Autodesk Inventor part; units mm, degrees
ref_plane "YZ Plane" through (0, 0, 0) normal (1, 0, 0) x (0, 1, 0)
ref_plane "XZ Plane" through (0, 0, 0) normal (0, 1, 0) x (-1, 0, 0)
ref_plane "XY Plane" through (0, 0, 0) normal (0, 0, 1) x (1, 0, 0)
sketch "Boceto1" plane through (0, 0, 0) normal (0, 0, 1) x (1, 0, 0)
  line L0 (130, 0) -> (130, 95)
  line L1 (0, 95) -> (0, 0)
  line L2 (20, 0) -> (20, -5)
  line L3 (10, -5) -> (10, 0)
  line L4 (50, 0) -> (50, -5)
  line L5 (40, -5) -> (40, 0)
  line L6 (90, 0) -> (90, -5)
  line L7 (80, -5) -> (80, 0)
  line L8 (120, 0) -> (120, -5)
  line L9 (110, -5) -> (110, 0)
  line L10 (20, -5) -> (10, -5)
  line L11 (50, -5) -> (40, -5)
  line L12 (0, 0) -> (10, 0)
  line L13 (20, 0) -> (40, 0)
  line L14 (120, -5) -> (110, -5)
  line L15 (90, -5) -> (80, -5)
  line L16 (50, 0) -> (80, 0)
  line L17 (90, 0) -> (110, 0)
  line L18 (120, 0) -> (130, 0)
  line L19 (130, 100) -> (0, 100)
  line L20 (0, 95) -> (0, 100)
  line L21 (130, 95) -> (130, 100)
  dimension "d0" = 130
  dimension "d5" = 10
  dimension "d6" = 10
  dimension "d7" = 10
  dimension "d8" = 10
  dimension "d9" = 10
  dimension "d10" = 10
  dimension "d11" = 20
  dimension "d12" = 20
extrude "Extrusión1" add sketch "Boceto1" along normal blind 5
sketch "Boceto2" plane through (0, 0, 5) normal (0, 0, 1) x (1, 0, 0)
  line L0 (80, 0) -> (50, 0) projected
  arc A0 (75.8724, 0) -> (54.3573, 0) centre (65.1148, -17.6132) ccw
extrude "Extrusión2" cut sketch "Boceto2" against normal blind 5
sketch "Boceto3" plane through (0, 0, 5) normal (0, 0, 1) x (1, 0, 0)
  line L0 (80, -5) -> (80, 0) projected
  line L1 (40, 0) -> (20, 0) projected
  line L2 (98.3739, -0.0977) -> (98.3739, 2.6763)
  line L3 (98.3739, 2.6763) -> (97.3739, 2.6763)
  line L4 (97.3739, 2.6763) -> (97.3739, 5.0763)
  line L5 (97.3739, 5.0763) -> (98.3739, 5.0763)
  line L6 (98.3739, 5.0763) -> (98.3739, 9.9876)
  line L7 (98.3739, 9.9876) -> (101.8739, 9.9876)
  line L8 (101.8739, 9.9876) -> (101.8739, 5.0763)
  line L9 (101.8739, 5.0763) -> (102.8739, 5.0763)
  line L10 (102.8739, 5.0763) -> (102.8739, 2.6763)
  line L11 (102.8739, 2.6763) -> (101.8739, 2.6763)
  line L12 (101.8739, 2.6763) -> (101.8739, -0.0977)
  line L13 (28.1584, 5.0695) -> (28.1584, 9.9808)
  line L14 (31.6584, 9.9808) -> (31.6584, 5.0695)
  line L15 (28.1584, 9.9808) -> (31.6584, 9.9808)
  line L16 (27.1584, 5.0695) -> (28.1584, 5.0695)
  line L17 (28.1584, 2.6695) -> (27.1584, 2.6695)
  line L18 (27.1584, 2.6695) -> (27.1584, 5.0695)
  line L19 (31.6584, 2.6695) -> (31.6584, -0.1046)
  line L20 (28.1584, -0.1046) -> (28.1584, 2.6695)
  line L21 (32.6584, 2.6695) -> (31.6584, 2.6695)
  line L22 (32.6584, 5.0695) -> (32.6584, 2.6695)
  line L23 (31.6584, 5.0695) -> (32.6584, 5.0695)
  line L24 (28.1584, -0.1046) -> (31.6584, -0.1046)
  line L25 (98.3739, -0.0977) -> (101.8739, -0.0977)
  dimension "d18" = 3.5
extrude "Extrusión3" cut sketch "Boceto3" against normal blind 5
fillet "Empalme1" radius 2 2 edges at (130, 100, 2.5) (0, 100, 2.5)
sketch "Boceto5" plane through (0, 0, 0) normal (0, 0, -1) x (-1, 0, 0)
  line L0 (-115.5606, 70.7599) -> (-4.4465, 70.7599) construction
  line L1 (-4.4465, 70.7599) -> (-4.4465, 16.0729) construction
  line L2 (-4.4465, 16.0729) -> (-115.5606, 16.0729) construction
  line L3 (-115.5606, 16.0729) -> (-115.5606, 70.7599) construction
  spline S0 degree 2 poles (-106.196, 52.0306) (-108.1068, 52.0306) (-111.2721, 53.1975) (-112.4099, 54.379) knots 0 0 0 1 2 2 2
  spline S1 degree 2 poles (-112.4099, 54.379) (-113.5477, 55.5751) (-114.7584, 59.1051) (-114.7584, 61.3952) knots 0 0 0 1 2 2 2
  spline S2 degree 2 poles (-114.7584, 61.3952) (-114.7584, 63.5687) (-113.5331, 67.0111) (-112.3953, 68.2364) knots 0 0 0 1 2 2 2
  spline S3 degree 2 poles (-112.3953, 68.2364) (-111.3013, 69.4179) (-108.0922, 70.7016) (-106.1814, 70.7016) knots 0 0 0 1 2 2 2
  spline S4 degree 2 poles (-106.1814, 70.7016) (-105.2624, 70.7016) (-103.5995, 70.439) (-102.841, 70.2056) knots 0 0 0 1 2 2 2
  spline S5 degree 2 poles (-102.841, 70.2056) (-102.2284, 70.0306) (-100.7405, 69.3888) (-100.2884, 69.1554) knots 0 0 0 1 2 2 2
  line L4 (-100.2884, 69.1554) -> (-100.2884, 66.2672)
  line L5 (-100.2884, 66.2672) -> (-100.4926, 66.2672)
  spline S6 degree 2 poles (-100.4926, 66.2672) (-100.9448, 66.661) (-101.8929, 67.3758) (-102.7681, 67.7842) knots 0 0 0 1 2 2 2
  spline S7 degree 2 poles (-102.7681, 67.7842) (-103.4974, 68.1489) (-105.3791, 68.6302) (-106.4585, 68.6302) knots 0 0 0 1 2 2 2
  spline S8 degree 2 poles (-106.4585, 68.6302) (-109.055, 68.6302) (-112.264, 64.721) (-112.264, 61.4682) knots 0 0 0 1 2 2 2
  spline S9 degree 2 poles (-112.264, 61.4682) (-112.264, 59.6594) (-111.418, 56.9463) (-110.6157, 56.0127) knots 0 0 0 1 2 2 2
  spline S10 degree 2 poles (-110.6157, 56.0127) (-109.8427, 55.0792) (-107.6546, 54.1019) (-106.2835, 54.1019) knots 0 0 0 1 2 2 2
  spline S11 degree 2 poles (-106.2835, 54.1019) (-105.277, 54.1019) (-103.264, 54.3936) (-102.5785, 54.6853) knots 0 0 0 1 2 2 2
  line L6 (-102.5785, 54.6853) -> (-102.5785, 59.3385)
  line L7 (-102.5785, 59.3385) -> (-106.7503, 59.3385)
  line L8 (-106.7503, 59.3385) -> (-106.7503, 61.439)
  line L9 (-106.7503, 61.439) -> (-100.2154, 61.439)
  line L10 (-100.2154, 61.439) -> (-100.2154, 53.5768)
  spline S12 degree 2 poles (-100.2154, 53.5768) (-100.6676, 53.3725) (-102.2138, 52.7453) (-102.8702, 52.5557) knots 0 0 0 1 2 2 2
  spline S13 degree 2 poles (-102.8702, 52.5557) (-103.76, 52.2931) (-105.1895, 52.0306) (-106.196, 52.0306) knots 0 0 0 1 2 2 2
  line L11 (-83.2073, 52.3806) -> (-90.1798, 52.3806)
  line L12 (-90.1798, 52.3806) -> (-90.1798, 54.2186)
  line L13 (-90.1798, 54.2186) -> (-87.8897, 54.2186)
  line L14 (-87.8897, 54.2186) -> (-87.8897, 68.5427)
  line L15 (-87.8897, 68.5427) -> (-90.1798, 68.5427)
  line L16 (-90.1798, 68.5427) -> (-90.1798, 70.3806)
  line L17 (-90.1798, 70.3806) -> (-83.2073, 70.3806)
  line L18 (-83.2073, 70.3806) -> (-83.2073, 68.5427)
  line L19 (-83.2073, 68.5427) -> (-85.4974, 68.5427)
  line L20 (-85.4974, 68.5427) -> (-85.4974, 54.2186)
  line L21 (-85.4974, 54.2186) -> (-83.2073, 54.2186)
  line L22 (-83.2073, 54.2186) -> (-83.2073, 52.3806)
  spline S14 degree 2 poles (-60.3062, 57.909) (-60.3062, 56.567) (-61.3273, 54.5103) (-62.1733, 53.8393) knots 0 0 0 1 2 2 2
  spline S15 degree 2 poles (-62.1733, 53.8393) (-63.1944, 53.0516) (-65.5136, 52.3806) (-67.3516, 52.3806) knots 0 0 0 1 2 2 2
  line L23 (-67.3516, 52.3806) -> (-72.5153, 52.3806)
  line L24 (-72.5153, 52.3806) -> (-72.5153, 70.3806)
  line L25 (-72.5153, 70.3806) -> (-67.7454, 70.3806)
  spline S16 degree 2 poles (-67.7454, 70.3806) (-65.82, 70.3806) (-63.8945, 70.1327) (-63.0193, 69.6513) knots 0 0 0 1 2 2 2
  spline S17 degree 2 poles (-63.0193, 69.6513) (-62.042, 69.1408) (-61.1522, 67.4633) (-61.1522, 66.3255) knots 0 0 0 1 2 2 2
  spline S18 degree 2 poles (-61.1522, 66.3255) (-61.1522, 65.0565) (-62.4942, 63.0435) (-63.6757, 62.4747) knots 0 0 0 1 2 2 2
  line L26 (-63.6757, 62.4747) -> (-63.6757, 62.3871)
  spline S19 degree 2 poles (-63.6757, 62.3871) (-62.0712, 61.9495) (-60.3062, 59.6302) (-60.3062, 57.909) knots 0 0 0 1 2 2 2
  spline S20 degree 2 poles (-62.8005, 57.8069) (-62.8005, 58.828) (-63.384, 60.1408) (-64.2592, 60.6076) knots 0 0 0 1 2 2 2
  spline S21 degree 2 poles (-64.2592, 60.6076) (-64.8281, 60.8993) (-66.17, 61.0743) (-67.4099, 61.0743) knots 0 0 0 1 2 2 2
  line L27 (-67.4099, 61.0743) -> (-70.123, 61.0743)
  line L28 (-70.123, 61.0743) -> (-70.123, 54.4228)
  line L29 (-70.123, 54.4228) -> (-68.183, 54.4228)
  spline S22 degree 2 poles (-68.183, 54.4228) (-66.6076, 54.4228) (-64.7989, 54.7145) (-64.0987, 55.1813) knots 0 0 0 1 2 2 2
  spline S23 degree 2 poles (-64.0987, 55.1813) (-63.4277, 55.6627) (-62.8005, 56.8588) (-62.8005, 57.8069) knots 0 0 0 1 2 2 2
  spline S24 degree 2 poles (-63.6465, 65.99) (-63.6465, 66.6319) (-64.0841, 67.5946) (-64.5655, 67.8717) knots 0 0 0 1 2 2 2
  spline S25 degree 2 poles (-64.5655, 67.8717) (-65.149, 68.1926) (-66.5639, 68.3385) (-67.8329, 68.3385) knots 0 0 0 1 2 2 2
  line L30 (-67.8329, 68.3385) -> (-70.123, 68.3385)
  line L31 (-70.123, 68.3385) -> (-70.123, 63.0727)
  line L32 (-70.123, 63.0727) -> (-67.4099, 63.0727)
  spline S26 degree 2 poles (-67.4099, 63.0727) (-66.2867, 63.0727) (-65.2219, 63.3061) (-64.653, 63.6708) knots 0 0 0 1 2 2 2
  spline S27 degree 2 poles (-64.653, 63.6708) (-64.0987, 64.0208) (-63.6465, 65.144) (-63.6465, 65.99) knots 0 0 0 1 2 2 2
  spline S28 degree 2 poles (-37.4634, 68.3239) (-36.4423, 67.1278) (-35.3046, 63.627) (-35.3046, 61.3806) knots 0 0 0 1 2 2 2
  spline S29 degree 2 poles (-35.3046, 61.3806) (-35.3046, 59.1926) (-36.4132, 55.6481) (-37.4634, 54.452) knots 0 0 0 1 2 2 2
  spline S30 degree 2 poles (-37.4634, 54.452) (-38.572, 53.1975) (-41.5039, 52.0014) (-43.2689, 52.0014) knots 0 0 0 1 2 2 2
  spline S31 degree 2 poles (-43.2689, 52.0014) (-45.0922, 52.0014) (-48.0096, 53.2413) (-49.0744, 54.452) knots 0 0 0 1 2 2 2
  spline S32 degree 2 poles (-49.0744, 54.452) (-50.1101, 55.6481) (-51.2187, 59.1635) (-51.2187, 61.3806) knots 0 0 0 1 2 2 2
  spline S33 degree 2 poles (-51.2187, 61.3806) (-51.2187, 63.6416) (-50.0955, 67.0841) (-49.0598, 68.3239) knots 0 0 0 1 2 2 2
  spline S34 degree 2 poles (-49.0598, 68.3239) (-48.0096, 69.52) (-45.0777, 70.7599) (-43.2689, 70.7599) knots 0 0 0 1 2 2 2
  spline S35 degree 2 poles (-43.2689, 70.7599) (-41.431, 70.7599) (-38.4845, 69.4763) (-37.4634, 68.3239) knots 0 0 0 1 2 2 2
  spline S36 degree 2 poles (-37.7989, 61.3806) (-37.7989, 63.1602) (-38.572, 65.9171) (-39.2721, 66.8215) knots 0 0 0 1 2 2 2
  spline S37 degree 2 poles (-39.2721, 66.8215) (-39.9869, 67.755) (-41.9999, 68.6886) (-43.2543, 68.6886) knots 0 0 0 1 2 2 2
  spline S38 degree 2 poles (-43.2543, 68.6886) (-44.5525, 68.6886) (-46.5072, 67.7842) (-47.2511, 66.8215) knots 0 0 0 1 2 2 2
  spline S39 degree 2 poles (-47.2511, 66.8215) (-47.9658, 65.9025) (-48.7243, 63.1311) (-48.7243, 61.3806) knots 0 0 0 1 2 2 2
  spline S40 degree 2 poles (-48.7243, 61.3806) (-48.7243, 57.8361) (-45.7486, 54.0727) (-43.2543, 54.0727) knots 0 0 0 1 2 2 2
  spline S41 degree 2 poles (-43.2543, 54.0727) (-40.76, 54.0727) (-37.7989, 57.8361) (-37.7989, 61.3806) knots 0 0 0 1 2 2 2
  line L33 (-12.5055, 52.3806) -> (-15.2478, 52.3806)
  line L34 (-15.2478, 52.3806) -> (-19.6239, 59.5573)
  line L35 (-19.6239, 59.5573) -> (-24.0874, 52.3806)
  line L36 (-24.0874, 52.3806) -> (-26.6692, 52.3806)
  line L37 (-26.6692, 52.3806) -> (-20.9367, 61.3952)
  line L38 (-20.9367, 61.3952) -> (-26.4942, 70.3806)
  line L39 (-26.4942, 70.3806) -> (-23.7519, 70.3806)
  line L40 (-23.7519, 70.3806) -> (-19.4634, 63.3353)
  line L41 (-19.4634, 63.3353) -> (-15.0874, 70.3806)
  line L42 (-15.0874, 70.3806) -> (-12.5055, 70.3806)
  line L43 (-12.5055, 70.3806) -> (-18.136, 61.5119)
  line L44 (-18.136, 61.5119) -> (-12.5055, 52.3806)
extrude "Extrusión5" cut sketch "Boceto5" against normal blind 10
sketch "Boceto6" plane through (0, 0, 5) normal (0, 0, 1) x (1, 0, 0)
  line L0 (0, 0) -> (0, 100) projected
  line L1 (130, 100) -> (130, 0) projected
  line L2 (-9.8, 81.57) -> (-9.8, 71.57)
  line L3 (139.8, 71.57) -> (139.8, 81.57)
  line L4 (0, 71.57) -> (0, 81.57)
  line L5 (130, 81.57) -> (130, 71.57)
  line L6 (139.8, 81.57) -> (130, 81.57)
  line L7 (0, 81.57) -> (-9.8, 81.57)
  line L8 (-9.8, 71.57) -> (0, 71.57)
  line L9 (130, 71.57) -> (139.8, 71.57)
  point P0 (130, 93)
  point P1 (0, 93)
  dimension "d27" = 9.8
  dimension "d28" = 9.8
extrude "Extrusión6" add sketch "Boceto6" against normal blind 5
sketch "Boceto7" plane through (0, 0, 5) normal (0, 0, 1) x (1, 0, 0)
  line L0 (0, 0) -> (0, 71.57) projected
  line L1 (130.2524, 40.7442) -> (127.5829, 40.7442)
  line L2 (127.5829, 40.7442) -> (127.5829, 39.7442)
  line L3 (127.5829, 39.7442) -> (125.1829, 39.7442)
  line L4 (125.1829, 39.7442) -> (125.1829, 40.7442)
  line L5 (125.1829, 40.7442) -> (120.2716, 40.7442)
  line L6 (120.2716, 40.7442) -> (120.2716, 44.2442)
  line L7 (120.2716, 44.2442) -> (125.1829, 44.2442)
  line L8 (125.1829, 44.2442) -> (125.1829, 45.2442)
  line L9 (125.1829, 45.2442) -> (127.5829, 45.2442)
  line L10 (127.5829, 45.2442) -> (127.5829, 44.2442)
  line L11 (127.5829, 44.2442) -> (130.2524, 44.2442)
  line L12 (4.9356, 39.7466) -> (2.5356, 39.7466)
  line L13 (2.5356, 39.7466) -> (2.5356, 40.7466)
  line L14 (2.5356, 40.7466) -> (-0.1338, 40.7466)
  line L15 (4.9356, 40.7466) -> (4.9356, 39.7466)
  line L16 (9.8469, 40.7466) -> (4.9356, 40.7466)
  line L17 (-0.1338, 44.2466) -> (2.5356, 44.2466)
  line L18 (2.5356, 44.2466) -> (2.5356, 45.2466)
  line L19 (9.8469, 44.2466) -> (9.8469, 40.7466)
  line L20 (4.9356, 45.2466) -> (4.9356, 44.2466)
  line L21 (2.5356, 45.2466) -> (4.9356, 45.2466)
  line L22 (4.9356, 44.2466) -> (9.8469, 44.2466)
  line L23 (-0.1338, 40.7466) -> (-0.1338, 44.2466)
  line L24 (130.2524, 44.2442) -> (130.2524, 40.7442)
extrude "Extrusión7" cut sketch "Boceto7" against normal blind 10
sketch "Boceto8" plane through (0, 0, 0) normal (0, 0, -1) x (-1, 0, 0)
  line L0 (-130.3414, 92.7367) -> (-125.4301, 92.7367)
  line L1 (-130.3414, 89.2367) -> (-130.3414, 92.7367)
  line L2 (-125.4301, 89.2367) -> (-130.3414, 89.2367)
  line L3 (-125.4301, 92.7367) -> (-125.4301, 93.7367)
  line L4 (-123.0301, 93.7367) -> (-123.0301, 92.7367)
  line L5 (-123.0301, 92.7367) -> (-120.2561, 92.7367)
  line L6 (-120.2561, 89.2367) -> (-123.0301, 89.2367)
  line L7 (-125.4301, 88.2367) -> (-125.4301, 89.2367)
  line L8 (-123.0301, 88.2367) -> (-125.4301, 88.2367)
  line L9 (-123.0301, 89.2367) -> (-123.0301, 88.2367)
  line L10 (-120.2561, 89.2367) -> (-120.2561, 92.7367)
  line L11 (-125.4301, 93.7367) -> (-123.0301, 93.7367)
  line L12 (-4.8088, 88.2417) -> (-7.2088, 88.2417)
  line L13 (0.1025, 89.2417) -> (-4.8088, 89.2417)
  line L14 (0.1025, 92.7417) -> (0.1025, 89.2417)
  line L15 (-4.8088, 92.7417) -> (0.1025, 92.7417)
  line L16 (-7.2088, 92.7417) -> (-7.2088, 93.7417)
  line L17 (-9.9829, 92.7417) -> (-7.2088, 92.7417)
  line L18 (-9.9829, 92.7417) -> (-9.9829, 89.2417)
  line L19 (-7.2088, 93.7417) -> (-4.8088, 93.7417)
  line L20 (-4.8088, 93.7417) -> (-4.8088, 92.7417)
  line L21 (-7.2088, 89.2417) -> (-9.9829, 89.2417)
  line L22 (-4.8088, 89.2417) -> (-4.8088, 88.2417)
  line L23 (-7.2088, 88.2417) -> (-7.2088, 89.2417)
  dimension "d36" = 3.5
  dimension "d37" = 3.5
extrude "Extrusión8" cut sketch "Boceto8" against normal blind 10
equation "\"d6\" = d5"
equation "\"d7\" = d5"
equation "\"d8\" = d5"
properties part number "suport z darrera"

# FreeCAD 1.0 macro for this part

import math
import FreeCAD as App
import Part
import Sketcher
Q = App.Units.Quantity


def edges_at(feature, points):
    """Names of the edges that pass closest to the given points."""
    edges = feature.Shape.Edges
    near = lambda p: min(range(len(edges)), key=lambda i: edges[i].distToShape(Part.Vertex(*p))[0])
    return sorted({f"Edge{near(p) + 1}" for p in points})


def add_polygon(sketch, points):
    """Adds a closed chain of lines whose ends are joined by coincident constraints."""
    first, n = sketch.GeometryCount, len(points)
    for a, b in zip(points, points[1:] + points[:1]):
        sketch.addGeometry(Part.LineSegment(App.Vector(*a, 0), App.Vector(*b, 0)), False)
    for i in range(n):
        sketch.addConstraint(Sketcher.Constraint("Coincident", first + i, 2, first + (i + 1) % n, 1))

doc = App.newDocument("Part")
body = doc.addObject("PartDesign::Body", "Body")
body.AllowCompound = True

sketch1 = body.newObject("Sketcher::SketchObject", "Sketch")
sketch1.AttachmentSupport = (doc.getObject("XY_Plane"), [""])
sketch1.MapMode = "FlatFace"
add_polygon(sketch1, [(120, 0), (130, 0), (130, 100), (0, 100), (0, 0), (10, 0), (10, -5), (20, -5), (20, 0), (40, 0), (40, -5), (50, -5), (50, 0), (80, 0), (80, -5), (90, -5), (90, 0), (110, 0), (110, -5), (120, -5)])
sketch1.addConstraint([
    Sketcher.Constraint("Horizontal", 0),
    Sketcher.Constraint("Vertical", 1),
    Sketcher.Constraint("Horizontal", 2),
    Sketcher.Constraint("Vertical", 3),
    Sketcher.Constraint("Horizontal", 4),
    Sketcher.Constraint("Vertical", 5),
    Sketcher.Constraint("Horizontal", 6),
    Sketcher.Constraint("Vertical", 7),
    Sketcher.Constraint("Horizontal", 8),
    Sketcher.Constraint("Vertical", 9),
    Sketcher.Constraint("Horizontal", 10),
    Sketcher.Constraint("Vertical", 11),
    Sketcher.Constraint("Horizontal", 12),
    Sketcher.Constraint("Vertical", 13),
    Sketcher.Constraint("Horizontal", 14),
    Sketcher.Constraint("Vertical", 15),
    Sketcher.Constraint("Horizontal", 16),
    Sketcher.Constraint("Vertical", 17),
    Sketcher.Constraint("Horizontal", 18),
    Sketcher.Constraint("Vertical", 19),
    Sketcher.Constraint("Coincident", 3, 2, -1, 1),
    Sketcher.Constraint("PointOnObject", 0, 2, -1),
    Sketcher.Constraint("PointOnObject", 7, 2, -1),
    Sketcher.Constraint("PointOnObject", 11, 2, -1),
    Sketcher.Constraint("PointOnObject", 15, 2, -1),
    Sketcher.Constraint("Horizontal", 6, 2, 9, 2),
    Sketcher.Constraint("Horizontal", 10, 2, 13, 2),
    Sketcher.Constraint("Horizontal", 14, 2, 17, 2),
    Sketcher.Constraint("Equal", 0, 4),
    Sketcher.Constraint("Equal", 4, 6),
    Sketcher.Constraint("Equal", 6, 10),
    Sketcher.Constraint("Equal", 10, 14),
    Sketcher.Constraint("Equal", 8, 16),
    Sketcher.Constraint("Equal", 14, 18),
    Sketcher.Constraint("DistanceX", 0, 1, 0, 2, 10.0),
    Sketcher.Constraint("DistanceX", 2, 2, 2, 1, 130.0),
    Sketcher.Constraint("DistanceX", 8, 1, 8, 2, 20.0),
    Sketcher.Constraint("DistanceY", 1, 1, 1, 2, 100.0),
    Sketcher.Constraint("DistanceY", 5, 2, 5, 1, 5.0),
])
pad1 = body.newObject("PartDesign::Pad", "Pad")
pad1.Profile = sketch1
pad1.Length = 5

sketch2 = body.newObject("Sketcher::SketchObject", "Sketch001")
sketch2.AttachmentSupport = (doc.getObject("XY_Plane"), [""])
sketch2.MapMode = "FlatFace"
sketch2.AttachmentOffset = App.Placement(App.Vector(0, 0, 5), App.Rotation())
sketch2.addGeometry([
    Part.LineSegment(App.Vector(54, 0, 0), App.Vector(76, 0, 0)),
    Part.ArcOfCircle(Part.Circle(App.Vector(65, -18, 0), App.Vector(0, 0, 1), 21), math.radians(59), math.radians(121)),
], False)
sketch2.addConstraint([
    Sketcher.Constraint("Coincident", 0, 1, 1, 2),
    Sketcher.Constraint("Coincident", 1, 1, 0, 2),
    Sketcher.Constraint("Horizontal", 0),
    Sketcher.Constraint("PointOnObject", 0, 1, -1),
    Sketcher.Constraint("Radius", 1, 20.6386),
    Sketcher.Constraint("DistanceX", 0, 1, 0, 2, 21.515),
    Sketcher.Constraint("DistanceX", -1, 1, 1, 3, 65.1148),
])
pocket1 = body.newObject("PartDesign::Pocket", "Pocket")
pocket1.Profile = sketch2
pocket1.Length = 5

sketch3 = body.newObject("Sketcher::SketchObject", "Sketch002")
sketch3.AttachmentSupport = (doc.getObject("XY_Plane"), [""])
sketch3.MapMode = "FlatFace"
sketch3.AttachmentOffset = App.Placement(App.Vector(0, 0, 5), App.Rotation())
add_polygon(sketch3, [(31.7, -0.1), (31.7, 2.7), (32.7, 2.7), (32.7, 5.1), (31.7, 5.1), (31.7, 10), (28.2, 10), (28.2, 5.1), (27.2, 5.1), (27.2, 2.7), (28.2, 2.7), (28.2, -0.1)])
add_polygon(sketch3, [(98.4, 2.7), (98.4, -0.1), (101.9, -0.1), (101.9, 2.7), (102.9, 2.7), (102.9, 5.1), (101.9, 5.1), (101.9, 10), (98.4, 10), (98.4, 5.1), (97.4, 5.1), (97.4, 2.7)])
sketch3.addConstraint([
    Sketcher.Constraint("Vertical", 0),
    Sketcher.Constraint("Horizontal", 1),
    Sketcher.Constraint("Vertical", 2),
    Sketcher.Constraint("Horizontal", 3),
    Sketcher.Constraint("Vertical", 4),
    Sketcher.Constraint("Horizontal", 5),
    Sketcher.Constraint("Vertical", 6),
    Sketcher.Constraint("Horizontal", 7),
    Sketcher.Constraint("Vertical", 8),
    Sketcher.Constraint("Horizontal", 9),
    Sketcher.Constraint("Vertical", 10),
    Sketcher.Constraint("Horizontal", 11),
    Sketcher.Constraint("Vertical", 12),
    Sketcher.Constraint("Horizontal", 13),
    Sketcher.Constraint("Vertical", 14),
    Sketcher.Constraint("Horizontal", 15),
    Sketcher.Constraint("Vertical", 16),
    Sketcher.Constraint("Horizontal", 17),
    Sketcher.Constraint("Vertical", 18),
    Sketcher.Constraint("Horizontal", 19),
    Sketcher.Constraint("Vertical", 20),
    Sketcher.Constraint("Horizontal", 21),
    Sketcher.Constraint("Vertical", 22),
    Sketcher.Constraint("Horizontal", 23),
    Sketcher.Constraint("Horizontal", 3, 2, 6, 2),
    Sketcher.Constraint("Horizontal", 1, 2, 8, 2),
    Sketcher.Constraint("Horizontal", 17, 2, 20, 2),
    Sketcher.Constraint("Horizontal", 15, 2, 22, 2),
    Sketcher.Constraint("Vertical", 0, 2, 3, 2),
    Sketcher.Constraint("Vertical", 6, 2, 9, 2),
    Sketcher.Constraint("Vertical", 14, 2, 17, 2),
    Sketcher.Constraint("Vertical", 12, 2, 19, 2),
    Sketcher.Constraint("Equal", 3, 7),
    Sketcher.Constraint("Equal", 11, 13),
    Sketcher.Constraint("Equal", 9, 15),
    Sketcher.Constraint("Equal", 17, 21),
    Sketcher.Constraint("Equal", 10, 12),
    Sketcher.Constraint("Equal", 8, 16),
    Sketcher.Constraint("Equal", 6, 18),
    Sketcher.Constraint("DistanceX", 5, 2, 5, 1, 3.5),
    Sketcher.Constraint("DistanceX", 1, 1, 1, 2, 1.0),
    Sketcher.Constraint("DistanceY", 2, 1, 2, 2, 2.4),
    Sketcher.Constraint("DistanceY", 0, 1, 0, 2, 2.774),
    Sketcher.Constraint("DistanceY", 4, 1, 4, 2, 4.9113),
    Sketcher.Constraint("DistanceX", -1, 1, 12, 2, 98.374),
    Sketcher.Constraint("DistanceY", 11, 2, 12, 2, 0.007),
    Sketcher.Constraint("DistanceX", -1, 1, 0, 2, 31.6584),
    Sketcher.Constraint("DistanceY", -1, 1, 0, 2, 2.6695),
])
pocket2 = body.newObject("PartDesign::Pocket", "Pocket001")
pocket2.Profile = sketch3
pocket2.Length = 5
doc.recompute()

fillet = body.newObject("PartDesign::Fillet", "Fillet")
fillet.Base = (pocket2, edges_at(pocket2, [(130, 100, 2.5), (0, 100, 2.5)]))
fillet.Radius = 2

sketch4 = body.newObject("Sketcher::SketchObject", "Sketch003")
sketch4.AttachmentSupport = (doc.getObject("XY_Plane"), [""])
sketch4.MapMode = "FlatFace"
sketch4.addGeometry(Part.BSplineCurve([App.Vector(106.196, 52.0306, 0), App.Vector(108.1068, 52.0306, 0), App.Vector(111.2721, 53.1975, 0), App.Vector(112.4099, 54.379, 0)], [3, 1, 3], [0, 1, 2], False, 2, [1, 1, 1, 1], False), False)
sketch4.addGeometry(Part.BSplineCurve([App.Vector(102.8702, 52.5557, 0), App.Vector(103.76, 52.2931, 0), App.Vector(105.1895, 52.0306, 0), App.Vector(106.196, 52.0306, 0)], [3, 1, 3], [0, 1, 2], False, 2, [1, 1, 1, 1], False), False)
sketch4.addGeometry(Part.BSplineCurve([App.Vector(100.2154, 53.5768, 0), App.Vector(100.6676, 53.3725, 0), App.Vector(102.2138, 52.7453, 0), App.Vector(102.8702, 52.5557, 0)], [3, 1, 3], [0, 1, 2], False, 2, [1, 1, 1, 1], False), False)
sketch4.addGeometry(Part.LineSegment(App.Vector(100.2154, 53.5768, 0), App.Vector(100.2154, 61.439, 0)), False)
sketch4.addGeometry(Part.LineSegment(App.Vector(100.2154, 61.439, 0), App.Vector(106.7503, 61.439, 0)), False)
sketch4.addGeometry(Part.LineSegment(App.Vector(106.7503, 61.439, 0), App.Vector(106.7503, 59.3385, 0)), False)
sketch4.addGeometry(Part.LineSegment(App.Vector(106.7503, 59.3385, 0), App.Vector(102.5785, 59.3385, 0)), False)
sketch4.addGeometry(Part.LineSegment(App.Vector(102.5785, 59.3385, 0), App.Vector(102.5785, 54.6853, 0)), False)
sketch4.addGeometry(Part.BSplineCurve([App.Vector(106.2835, 54.1019, 0), App.Vector(105.277, 54.1019, 0), App.Vector(103.264, 54.3936, 0), App.Vector(102.5785, 54.6853, 0)], [3, 1, 3], [0, 1, 2], False, 2, [1, 1, 1, 1], False), False)
sketch4.addGeometry(Part.BSplineCurve([App.Vector(110.6157, 56.0127, 0), App.Vector(109.8427, 55.0792, 0), App.Vector(107.6546, 54.1019, 0), App.Vector(106.2835, 54.1019, 0)], [3, 1, 3], [0, 1, 2], False, 2, [1, 1, 1, 1], False), False)
sketch4.addGeometry(Part.BSplineCurve([App.Vector(112.264, 61.4682, 0), App.Vector(112.264, 59.6594, 0), App.Vector(111.418, 56.9463, 0), App.Vector(110.6157, 56.0127, 0)], [3, 1, 3], [0, 1, 2], False, 2, [1, 1, 1, 1], False), False)
sketch4.addGeometry(Part.BSplineCurve([App.Vector(106.4585, 68.6302, 0), App.Vector(109.055, 68.6302, 0), App.Vector(112.264, 64.721, 0), App.Vector(112.264, 61.4682, 0)], [3, 1, 3], [0, 1, 2], False, 2, [1, 1, 1, 1], False), False)
sketch4.addGeometry(Part.BSplineCurve([App.Vector(102.7681, 67.7842, 0), App.Vector(103.4974, 68.1489, 0), App.Vector(105.3791, 68.6302, 0), App.Vector(106.4585, 68.6302, 0)], [3, 1, 3], [0, 1, 2], False, 2, [1, 1, 1, 1], False), False)
sketch4.addGeometry(Part.BSplineCurve([App.Vector(100.4926, 66.2672, 0), App.Vector(100.9448, 66.661, 0), App.Vector(101.8929, 67.3758, 0), App.Vector(102.7681, 67.7842, 0)], [3, 1, 3], [0, 1, 2], False, 2, [1, 1, 1, 1], False), False)
sketch4.addGeometry(Part.LineSegment(App.Vector(100.4926, 66.2672, 0), App.Vector(100.2884, 66.2672, 0)), False)
sketch4.addGeometry(Part.LineSegment(App.Vector(100.2884, 66.2672, 0), App.Vector(100.2884, 69.1554, 0)), False)
sketch4.addGeometry(Part.BSplineCurve([App.Vector(102.841, 70.2056, 0), App.Vector(102.2284, 70.0306, 0), App.Vector(100.7405, 69.3888, 0), App.Vector(100.2884, 69.1554, 0)], [3, 1, 3], [0, 1, 2], False, 2, [1, 1, 1, 1], False), False)
sketch4.addGeometry(Part.BSplineCurve([App.Vector(106.1814, 70.7016, 0), App.Vector(105.2624, 70.7016, 0), App.Vector(103.5995, 70.439, 0), App.Vector(102.841, 70.2056, 0)], [3, 1, 3], [0, 1, 2], False, 2, [1, 1, 1, 1], False), False)
sketch4.addGeometry(Part.BSplineCurve([App.Vector(112.3953, 68.2364, 0), App.Vector(111.3013, 69.4179, 0), App.Vector(108.0922, 70.7016, 0), App.Vector(106.1814, 70.7016, 0)], [3, 1, 3], [0, 1, 2], False, 2, [1, 1, 1, 1], False), False)
sketch4.addGeometry(Part.BSplineCurve([App.Vector(114.7584, 61.3952, 0), App.Vector(114.7584, 63.5687, 0), App.Vector(113.5331, 67.0111, 0), App.Vector(112.3953, 68.2364, 0)], [3, 1, 3], [0, 1, 2], False, 2, [1, 1, 1, 1], False), False)
sketch4.addGeometry(Part.BSplineCurve([App.Vector(112.4099, 54.379, 0), App.Vector(113.5477, 55.5751, 0), App.Vector(114.7584, 59.1051, 0), App.Vector(114.7584, 61.3952, 0)], [3, 1, 3], [0, 1, 2], False, 2, [1, 1, 1, 1], False), False)
add_polygon(sketch4, [(90.1798, 52.3806), (83.2073, 52.3806), (83.2073, 54.2186), (85.4974, 54.2186), (85.4974, 68.5427), (83.2073, 68.5427), (83.2073, 70.3806), (90.1798, 70.3806), (90.1798, 68.5427), (87.8897, 68.5427), (87.8897, 54.2186), (90.1798, 54.2186)])
sketch4.addGeometry(Part.BSplineCurve([App.Vector(60.3062, 57.909, 0), App.Vector(60.3062, 56.567, 0), App.Vector(61.3273, 54.5103, 0), App.Vector(62.1733, 53.8393, 0)], [3, 1, 3], [0, 1, 2], False, 2, [1, 1, 1, 1], False), False)
sketch4.addGeometry(Part.BSplineCurve([App.Vector(63.6757, 62.3871, 0), App.Vector(62.0712, 61.9495, 0), App.Vector(60.3062, 59.6302, 0), App.Vector(60.3062, 57.909, 0)], [3, 1, 3], [0, 1, 2], False, 2, [1, 1, 1, 1], False), False)
sketch4.addGeometry(Part.LineSegment(App.Vector(63.6757, 62.3871, 0), App.Vector(63.6757, 62.4747, 0)), False)
sketch4.addGeometry(Part.BSplineCurve([App.Vector(61.1522, 66.3255, 0), App.Vector(61.1522, 65.0565, 0), App.Vector(62.4942, 63.0435, 0), App.Vector(63.6757, 62.4747, 0)], [3, 1, 3], [0, 1, 2], False, 2, [1, 1, 1, 1], False), False)
sketch4.addGeometry(Part.BSplineCurve([App.Vector(63.0193, 69.6513, 0), App.Vector(62.042, 69.1408, 0), App.Vector(61.1522, 67.4633, 0), App.Vector(61.1522, 66.3255, 0)], [3, 1, 3], [0, 1, 2], False, 2, [1, 1, 1, 1], False), False)
sketch4.addGeometry(Part.BSplineCurve([App.Vector(67.7454, 70.3806, 0), App.Vector(65.82, 70.3806, 0), App.Vector(63.8945, 70.1327, 0), App.Vector(63.0193, 69.6513, 0)], [3, 1, 3], [0, 1, 2], False, 2, [1, 1, 1, 1], False), False)
sketch4.addGeometry(Part.LineSegment(App.Vector(67.7454, 70.3806, 0), App.Vector(72.5153, 70.3806, 0)), False)
sketch4.addGeometry(Part.LineSegment(App.Vector(72.5153, 70.3806, 0), App.Vector(72.5153, 52.3806, 0)), False)
sketch4.addGeometry(Part.LineSegment(App.Vector(72.5153, 52.3806, 0), App.Vector(67.3516, 52.3806, 0)), False)
sketch4.addGeometry(Part.BSplineCurve([App.Vector(62.1733, 53.8393, 0), App.Vector(63.1944, 53.0516, 0), App.Vector(65.5136, 52.3806, 0), App.Vector(67.3516, 52.3806, 0)], [3, 1, 3], [0, 1, 2], False, 2, [1, 1, 1, 1], False), False)
sketch4.addGeometry(Part.BSplineCurve([App.Vector(62.8005, 57.8069, 0), App.Vector(62.8005, 58.828, 0), App.Vector(63.384, 60.1408, 0), App.Vector(64.2592, 60.6076, 0)], [3, 1, 3], [0, 1, 2], False, 2, [1, 1, 1, 1], False), False)
sketch4.addGeometry(Part.BSplineCurve([App.Vector(64.0987, 55.1813, 0), App.Vector(63.4277, 55.6627, 0), App.Vector(62.8005, 56.8588, 0), App.Vector(62.8005, 57.8069, 0)], [3, 1, 3], [0, 1, 2], False, 2, [1, 1, 1, 1], False), False)
sketch4.addGeometry(Part.BSplineCurve([App.Vector(68.183, 54.4228, 0), App.Vector(66.6076, 54.4228, 0), App.Vector(64.7989, 54.7145, 0), App.Vector(64.0987, 55.1813, 0)], [3, 1, 3], [0, 1, 2], False, 2, [1, 1, 1, 1], False), False)
sketch4.addGeometry(Part.LineSegment(App.Vector(68.183, 54.4228, 0), App.Vector(70.123, 54.4228, 0)), False)
sketch4.addGeometry(Part.LineSegment(App.Vector(70.123, 54.4228, 0), App.Vector(70.123, 61.0743, 0)), False)
sketch4.addGeometry(Part.LineSegment(App.Vector(70.123, 61.0743, 0), App.Vector(67.4099, 61.0743, 0)), False)
sketch4.addGeometry(Part.BSplineCurve([App.Vector(64.2592, 60.6076, 0), App.Vector(64.8281, 60.8993, 0), App.Vector(66.17, 61.0743, 0), App.Vector(67.4099, 61.0743, 0)], [3, 1, 3], [0, 1, 2], False, 2, [1, 1, 1, 1], False), False)
sketch4.addGeometry(Part.BSplineCurve([App.Vector(63.6465, 65.99, 0), App.Vector(63.6465, 66.6319, 0), App.Vector(64.0841, 67.5946, 0), App.Vector(64.5655, 67.8717, 0)], [3, 1, 3], [0, 1, 2], False, 2, [1, 1, 1, 1], False), False)
sketch4.addGeometry(Part.BSplineCurve([App.Vector(64.653, 63.6708, 0), App.Vector(64.0987, 64.0208, 0), App.Vector(63.6465, 65.144, 0), App.Vector(63.6465, 65.99, 0)], [3, 1, 3], [0, 1, 2], False, 2, [1, 1, 1, 1], False), False)
sketch4.addGeometry(Part.BSplineCurve([App.Vector(67.4099, 63.0727, 0), App.Vector(66.2867, 63.0727, 0), App.Vector(65.2219, 63.3061, 0), App.Vector(64.653, 63.6708, 0)], [3, 1, 3], [0, 1, 2], False, 2, [1, 1, 1, 1], False), False)
sketch4.addGeometry(Part.LineSegment(App.Vector(67.4099, 63.0727, 0), App.Vector(70.123, 63.0727, 0)), False)
sketch4.addGeometry(Part.LineSegment(App.Vector(70.123, 63.0727, 0), App.Vector(70.123, 68.3385, 0)), False)
sketch4.addGeometry(Part.LineSegment(App.Vector(70.123, 68.3385, 0), App.Vector(67.8329, 68.3385, 0)), False)
sketch4.addGeometry(Part.BSplineCurve([App.Vector(64.5655, 67.8717, 0), App.Vector(65.149, 68.1926, 0), App.Vector(66.5639, 68.3385, 0), App.Vector(67.8329, 68.3385, 0)], [3, 1, 3], [0, 1, 2], False, 2, [1, 1, 1, 1], False), False)
sketch4.addGeometry(Part.BSplineCurve([App.Vector(37.4634, 68.3239, 0), App.Vector(36.4423, 67.1278, 0), App.Vector(35.3046, 63.627, 0), App.Vector(35.3046, 61.3806, 0)], [3, 1, 3], [0, 1, 2], False, 2, [1, 1, 1, 1], False), False)
sketch4.addGeometry(Part.BSplineCurve([App.Vector(43.2689, 70.7599, 0), App.Vector(41.431, 70.7599, 0), App.Vector(38.4845, 69.4763, 0), App.Vector(37.4634, 68.3239, 0)], [3, 1, 3], [0, 1, 2], False, 2, [1, 1, 1, 1], False), False)
sketch4.addGeometry(Part.BSplineCurve([App.Vector(49.0598, 68.3239, 0), App.Vector(48.0096, 69.52, 0), App.Vector(45.0777, 70.7599, 0), App.Vector(43.2689, 70.7599, 0)], [3, 1, 3], [0, 1, 2], False, 2, [1, 1, 1, 1], False), False)
sketch4.addGeometry(Part.BSplineCurve([App.Vector(51.2187, 61.3806, 0), App.Vector(51.2187, 63.6416, 0), App.Vector(50.0955, 67.0841, 0), App.Vector(49.0598, 68.3239, 0)], [3, 1, 3], [0, 1, 2], False, 2, [1, 1, 1, 1], False), False)
sketch4.addGeometry(Part.BSplineCurve([App.Vector(49.0744, 54.452, 0), App.Vector(50.1101, 55.6481, 0), App.Vector(51.2187, 59.1635, 0), App.Vector(51.2187, 61.3806, 0)], [3, 1, 3], [0, 1, 2], False, 2, [1, 1, 1, 1], False), False)
sketch4.addGeometry(Part.BSplineCurve([App.Vector(43.2689, 52.0014, 0), App.Vector(45.0922, 52.0014, 0), App.Vector(48.0096, 53.2413, 0), App.Vector(49.0744, 54.452, 0)], [3, 1, 3], [0, 1, 2], False, 2, [1, 1, 1, 1], False), False)
sketch4.addGeometry(Part.BSplineCurve([App.Vector(37.4634, 54.452, 0), App.Vector(38.572, 53.1975, 0), App.Vector(41.5039, 52.0014, 0), App.Vector(43.2689, 52.0014, 0)], [3, 1, 3], [0, 1, 2], False, 2, [1, 1, 1, 1], False), False)
sketch4.addGeometry(Part.BSplineCurve([App.Vector(35.3046, 61.3806, 0), App.Vector(35.3046, 59.1926, 0), App.Vector(36.4132, 55.6481, 0), App.Vector(37.4634, 54.452, 0)], [3, 1, 3], [0, 1, 2], False, 2, [1, 1, 1, 1], False), False)
sketch4.addGeometry(Part.BSplineCurve([App.Vector(37.7989, 61.3806, 0), App.Vector(37.7989, 63.1602, 0), App.Vector(38.572, 65.9171, 0), App.Vector(39.2721, 66.8215, 0)], [3, 1, 3], [0, 1, 2], False, 2, [1, 1, 1, 1], False), False)
sketch4.addGeometry(Part.BSplineCurve([App.Vector(43.2543, 54.0727, 0), App.Vector(40.76, 54.0727, 0), App.Vector(37.7989, 57.8361, 0), App.Vector(37.7989, 61.3806, 0)], [3, 1, 3], [0, 1, 2], False, 2, [1, 1, 1, 1], False), False)
sketch4.addGeometry(Part.BSplineCurve([App.Vector(48.7243, 61.3806, 0), App.Vector(48.7243, 57.8361, 0), App.Vector(45.7486, 54.0727, 0), App.Vector(43.2543, 54.0727, 0)], [3, 1, 3], [0, 1, 2], False, 2, [1, 1, 1, 1], False), False)
sketch4.addGeometry(Part.BSplineCurve([App.Vector(47.2511, 66.8215, 0), App.Vector(47.9658, 65.9025, 0), App.Vector(48.7243, 63.1311, 0), App.Vector(48.7243, 61.3806, 0)], [3, 1, 3], [0, 1, 2], False, 2, [1, 1, 1, 1], False), False)
sketch4.addGeometry(Part.BSplineCurve([App.Vector(43.2543, 68.6886, 0), App.Vector(44.5525, 68.6886, 0), App.Vector(46.5072, 67.7842, 0), App.Vector(47.2511, 66.8215, 0)], [3, 1, 3], [0, 1, 2], False, 2, [1, 1, 1, 1], False), False)
sketch4.addGeometry(Part.BSplineCurve([App.Vector(39.2721, 66.8215, 0), App.Vector(39.9869, 67.755, 0), App.Vector(41.9999, 68.6886, 0), App.Vector(43.2543, 68.6886, 0)], [3, 1, 3], [0, 1, 2], False, 2, [1, 1, 1, 1], False), False)
add_polygon(sketch4, [(15.2478, 52.3806), (12.5055, 52.3806), (18.136, 61.5119), (12.5055, 70.3806), (15.0874, 70.3806), (19.4634, 63.3353), (23.7519, 70.3806), (26.4942, 70.3806), (20.9367, 61.3952), (26.6692, 52.3806), (24.0874, 52.3806), (19.6239, 59.5573)])
sketch4.addConstraint([
    Sketcher.Constraint("Block", 0),
    Sketcher.Constraint("Block", 1),
    Sketcher.Constraint("Block", 2),
    Sketcher.Constraint("Block", 8),
    Sketcher.Constraint("Block", 9),
    Sketcher.Constraint("Block", 10),
    Sketcher.Constraint("Block", 11),
    Sketcher.Constraint("Block", 12),
    Sketcher.Constraint("Block", 13),
    Sketcher.Constraint("Block", 16),
    Sketcher.Constraint("Block", 17),
    Sketcher.Constraint("Block", 18),
    Sketcher.Constraint("Block", 19),
    Sketcher.Constraint("Block", 20),
    Sketcher.Constraint("Block", 33),
    Sketcher.Constraint("Block", 34),
    Sketcher.Constraint("Block", 36),
    Sketcher.Constraint("Block", 37),
    Sketcher.Constraint("Block", 38),
    Sketcher.Constraint("Block", 42),
    Sketcher.Constraint("Block", 43),
    Sketcher.Constraint("Block", 44),
    Sketcher.Constraint("Block", 45),
    Sketcher.Constraint("Block", 49),
    Sketcher.Constraint("Block", 50),
    Sketcher.Constraint("Block", 51),
    Sketcher.Constraint("Block", 52),
    Sketcher.Constraint("Block", 56),
    Sketcher.Constraint("Block", 57),
    Sketcher.Constraint("Block", 58),
    Sketcher.Constraint("Block", 59),
    Sketcher.Constraint("Block", 60),
    Sketcher.Constraint("Block", 61),
    Sketcher.Constraint("Block", 62),
    Sketcher.Constraint("Block", 63),
    Sketcher.Constraint("Block", 64),
    Sketcher.Constraint("Block", 65),
    Sketcher.Constraint("Block", 66),
    Sketcher.Constraint("Block", 67),
    Sketcher.Constraint("Block", 68),
    Sketcher.Constraint("Block", 69),
    Sketcher.Constraint("Block", 70),
    Sketcher.Constraint("Coincident", 2, 1, 3, 1),
    Sketcher.Constraint("Coincident", 3, 2, 4, 1),
    Sketcher.Constraint("Coincident", 4, 2, 5, 1),
    Sketcher.Constraint("Coincident", 5, 2, 6, 1),
    Sketcher.Constraint("Coincident", 6, 2, 7, 1),
    Sketcher.Constraint("Coincident", 7, 2, 8, 2),
    Sketcher.Constraint("Coincident", 13, 1, 14, 1),
    Sketcher.Constraint("Coincident", 14, 2, 15, 1),
    Sketcher.Constraint("Coincident", 15, 2, 16, 2),
    Sketcher.Constraint("Coincident", 34, 1, 35, 1),
    Sketcher.Constraint("Coincident", 35, 2, 36, 2),
    Sketcher.Constraint("Coincident", 38, 1, 39, 1),
    Sketcher.Constraint("Coincident", 39, 2, 40, 1),
    Sketcher.Constraint("Coincident", 40, 2, 41, 1),
    Sketcher.Constraint("Coincident", 41, 2, 42, 2),
    Sketcher.Constraint("Coincident", 45, 1, 46, 1),
    Sketcher.Constraint("Coincident", 46, 2, 47, 1),
    Sketcher.Constraint("Coincident", 47, 2, 48, 1),
    Sketcher.Constraint("Coincident", 48, 2, 49, 2),
    Sketcher.Constraint("Coincident", 52, 1, 53, 1),
    Sketcher.Constraint("Coincident", 53, 2, 54, 1),
    Sketcher.Constraint("Coincident", 54, 2, 55, 1),
    Sketcher.Constraint("Coincident", 55, 2, 56, 2),
    Sketcher.Constraint("Vertical", 3),
    Sketcher.Constraint("Horizontal", 4),
    Sketcher.Constraint("Vertical", 5),
    Sketcher.Constraint("Horizontal", 6),
    Sketcher.Constraint("Vertical", 7),
    Sketcher.Constraint("Horizontal", 14),
    Sketcher.Constraint("Vertical", 15),
    Sketcher.Constraint("Horizontal", 21),
    Sketcher.Constraint("Vertical", 22),
    Sketcher.Constraint("Horizontal", 23),
    Sketcher.Constraint("Vertical", 24),
    Sketcher.Constraint("Horizontal", 25),
    Sketcher.Constraint("Vertical", 26),
    Sketcher.Constraint("Horizontal", 27),
    Sketcher.Constraint("Vertical", 28),
    Sketcher.Constraint("Horizontal", 29),
    Sketcher.Constraint("Vertical", 30),
    Sketcher.Constraint("Horizontal", 31),
    Sketcher.Constraint("Vertical", 32),
    Sketcher.Constraint("Horizontal", 39),
    Sketcher.Constraint("Vertical", 40),
    Sketcher.Constraint("Horizontal", 41),
    Sketcher.Constraint("Horizontal", 46),
    Sketcher.Constraint("Vertical", 47),
    Sketcher.Constraint("Horizontal", 48),
    Sketcher.Constraint("Horizontal", 53),
    Sketcher.Constraint("Vertical", 54),
    Sketcher.Constraint("Horizontal", 55),
    Sketcher.Constraint("Horizontal", 71),
    Sketcher.Constraint("Horizontal", 74),
    Sketcher.Constraint("Horizontal", 77),
    Sketcher.Constraint("Horizontal", 80),
    Sketcher.Constraint("Horizontal", 25, 2, 28, 2),
    Sketcher.Constraint("Horizontal", 23, 2, 30, 2),
    Sketcher.Constraint("Horizontal", 27, 2, 39, 2),
    Sketcher.Constraint("Horizontal", 32, 2, 40, 2),
    Sketcher.Constraint("Horizontal", 41, 2, 71, 2),
    Sketcher.Constraint("Horizontal", 39, 2, 73, 2),
    Sketcher.Constraint("Horizontal", 74, 2, 76, 2),
    Sketcher.Constraint("Horizontal", 71, 2, 79, 2),
    Sketcher.Constraint("Vertical", 22, 2, 25, 2),
    Sketcher.Constraint("Vertical", 28, 2, 31, 2),
    Sketcher.Constraint("Vertical", 47, 2, 53, 2),
    Sketcher.Constraint("Vertical", 71, 2, 73, 2),
    Sketcher.Constraint("Equal", 25, 29),
    Sketcher.Constraint("Equal", 31, 55),
    Sketcher.Constraint("Equal", 71, 77),
    Sketcher.Constraint("Equal", 74, 80),
    Sketcher.Constraint("Equal", 22, 26),
    Sketcher.Constraint("DistanceX", 23, 1, 23, 2, 2.29),
    Sketcher.Constraint("DistanceX", 39, 1, 39, 2, 4.77),
    Sketcher.Constraint("Angle", 73, Q("122.4104 deg")),
    Sketcher.Constraint("Angle", 76, Q("58.671 deg")),
    Sketcher.Constraint("Angle", 81, Q("121.8793 deg")),
    Sketcher.Constraint("DistanceX", 4, 1, 4, 2, 6.535),
    Sketcher.Constraint("DistanceX", 74, 1, 74, 2, 2.582),
    Sketcher.Constraint("DistanceY", 22, 1, 22, 2, 1.838),
    Sketcher.Constraint("DistanceY", 22, 2, 6, 2, 5.12),
    Sketcher.Constraint("DistanceY", 78, 2, 75, 2, 1.94),
    Sketcher.Constraint("Distance", 73, 10.505),
    Sketcher.Constraint("Distance", 79, 10.683),
    Sketcher.Constraint("DistanceX", 21, 2, 21, 1, 6.9725),
    Sketcher.Constraint("DistanceX", 71, 2, 71, 1, 2.7423),
    Sketcher.Constraint("DistanceY", 3, 1, 3, 2, 7.8622),
    Sketcher.Constraint("DistanceX", -1, 1, 72, 2, 18.136),
    Sketcher.Constraint("DistanceX", -1, 1, 76, 2, 23.752),
    Sketcher.Constraint("DistanceX", -1, 1, 81, 2, 19.624),
    Sketcher.Constraint("DistanceX", 21, 2, 3, 2, 17.008),
    Sketcher.Constraint("DistanceX", 74, 2, 75, 2, 4.376),
    Sketcher.Constraint("DistanceX", 77, 2, 79, 2, 0.175),
])
pocket3 = body.newObject("PartDesign::Pocket", "Pocket002")
pocket3.Profile = sketch4
pocket3.Length = 10
pocket3.Reversed = True

sketch5 = body.newObject("Sketcher::SketchObject", "Sketch004")
sketch5.AttachmentSupport = (doc.getObject("XY_Plane"), [""])
sketch5.MapMode = "FlatFace"
sketch5.AttachmentOffset = App.Placement(App.Vector(0, 0, 5), App.Rotation())
add_polygon(sketch5, [(-10, 72), (0, 72), (0, 82), (-10, 82)])
add_polygon(sketch5, [(140, 82), (130, 82), (130, 72), (140, 72)])
sketch5.addConstraint([
    Sketcher.Constraint("Horizontal", 0),
    Sketcher.Constraint("Vertical", 1),
    Sketcher.Constraint("Horizontal", 2),
    Sketcher.Constraint("Vertical", 3),
    Sketcher.Constraint("Horizontal", 4),
    Sketcher.Constraint("Vertical", 5),
    Sketcher.Constraint("Horizontal", 6),
    Sketcher.Constraint("Vertical", 7),
    Sketcher.Constraint("PointOnObject", 0, 2, -2),
    Sketcher.Constraint("Horizontal", 2, 2, 4, 2),
    Sketcher.Constraint("Horizontal", 3, 2, 5, 2),
    Sketcher.Constraint("Equal", 2, 4),
    Sketcher.Constraint("DistanceX", 0, 1, 0, 2, 9.8),
    Sketcher.Constraint("DistanceY", 1, 1, 1, 2, 10.0),
    Sketcher.Constraint("DistanceX", -1, 1, 4, 2, 130.0),
    Sketcher.Constraint("DistanceY", -1, 1, 0, 2, 71.57),
])
pad2 = body.newObject("PartDesign::Pad", "Pad001")
pad2.Profile = sketch5
pad2.Length = 5
pad2.Reversed = True

sketch6 = body.newObject("Sketcher::SketchObject", "Sketch005")
sketch6.AttachmentSupport = (doc.getObject("XY_Plane"), [""])
sketch6.MapMode = "FlatFace"
sketch6.AttachmentOffset = App.Placement(App.Vector(0, 0, 5), App.Rotation())
add_polygon(sketch6, [(-0.1, 40.7), (2.5, 40.7), (2.5, 39.7), (4.9, 39.7), (4.9, 40.7), (9.8, 40.7), (9.8, 44.2), (4.9, 44.2), (4.9, 45.2), (2.5, 45.2), (2.5, 44.2), (-0.1, 44.2)])
add_polygon(sketch6, [(127.6, 40.7), (130.3, 40.7), (130.3, 44.2), (127.6, 44.2), (127.6, 45.2), (125.2, 45.2), (125.2, 44.2), (120.3, 44.2), (120.3, 40.7), (125.2, 40.7), (125.2, 39.7), (127.6, 39.7)])
sketch6.addConstraint([
    Sketcher.Constraint("Horizontal", 0),
    Sketcher.Constraint("Vertical", 1),
    Sketcher.Constraint("Horizontal", 2),
    Sketcher.Constraint("Vertical", 3),
    Sketcher.Constraint("Horizontal", 4),
    Sketcher.Constraint("Vertical", 5),
    Sketcher.Constraint("Horizontal", 6),
    Sketcher.Constraint("Vertical", 7),
    Sketcher.Constraint("Horizontal", 8),
    Sketcher.Constraint("Vertical", 9),
    Sketcher.Constraint("Horizontal", 10),
    Sketcher.Constraint("Vertical", 11),
    Sketcher.Constraint("Horizontal", 12),
    Sketcher.Constraint("Vertical", 13),
    Sketcher.Constraint("Horizontal", 14),
    Sketcher.Constraint("Vertical", 15),
    Sketcher.Constraint("Horizontal", 16),
    Sketcher.Constraint("Vertical", 17),
    Sketcher.Constraint("Horizontal", 18),
    Sketcher.Constraint("Vertical", 19),
    Sketcher.Constraint("Horizontal", 20),
    Sketcher.Constraint("Vertical", 21),
    Sketcher.Constraint("Horizontal", 22),
    Sketcher.Constraint("Vertical", 23),
    Sketcher.Constraint("Horizontal", 0, 2, 3, 2),
    Sketcher.Constraint("Horizontal", 6, 2, 9, 2),
    Sketcher.Constraint("Horizontal", 14, 2, 17, 2),
    Sketcher.Constraint("Horizontal", 12, 2, 19, 2),
    Sketcher.Constraint("Vertical", 3, 2, 6, 2),
    Sketcher.Constraint("Vertical", 1, 2, 8, 2),
    Sketcher.Constraint("Vertical", 17, 2, 20, 2),
    Sketcher.Constraint("Vertical", 15, 2, 22, 2),
    Sketcher.Constraint("Equal", 10, 12),
    Sketcher.Constraint("Equal", 8, 16),
    Sketcher.Constraint("Equal", 6, 18),
    Sketcher.Constraint("Equal", 3, 7),
    Sketcher.Constraint("Equal", 11, 13),
    Sketcher.Constraint("Equal", 9, 15),
    Sketcher.Constraint("Equal", 17, 21),
    Sketcher.Constraint("DistanceY", 1, 2, 1, 1, 1.0),
    Sketcher.Constraint("DistanceX", 2, 1, 2, 2, 2.4),
    Sketcher.Constraint("DistanceY", 5, 1, 5, 2, 3.5),
    Sketcher.Constraint("DistanceX", 0, 1, 0, 2, 2.6694),
    Sketcher.Constraint("DistanceX", 4, 1, 4, 2, 4.9113),
    Sketcher.Constraint("DistanceX", -1, 1, 4, 2, 9.847),
    Sketcher.Constraint("DistanceX", -1, 1, 14, 2, 127.583),
    Sketcher.Constraint("DistanceY", -1, 1, 0, 2, 40.7466),
    Sketcher.Constraint("DistanceY", -1, 1, 12, 2, 40.7442),
])
pocket4 = body.newObject("PartDesign::Pocket", "Pocket003")
pocket4.Profile = sketch6
pocket4.Length = 10

sketch7 = body.newObject("Sketcher::SketchObject", "Sketch006")
sketch7.AttachmentSupport = (doc.getObject("XY_Plane"), [""])
sketch7.MapMode = "FlatFace"
add_polygon(sketch7, [(125.4, 92.7), (130.3, 92.7), (130.3, 89.2), (125.4, 89.2), (125.4, 88.2), (123, 88.2), (123, 89.2), (120.3, 89.2), (120.3, 92.7), (123, 92.7), (123, 93.7), (125.4, 93.7)])
add_polygon(sketch7, [(7.2, 88.2), (4.8, 88.2), (4.8, 89.2), (-0.1, 89.2), (-0.1, 92.7), (4.8, 92.7), (4.8, 93.7), (7.2, 93.7), (7.2, 92.7), (10, 92.7), (10, 89.2), (7.2, 89.2)])
sketch7.addConstraint([
    Sketcher.Constraint("Horizontal", 0),
    Sketcher.Constraint("Vertical", 1),
    Sketcher.Constraint("Horizontal", 2),
    Sketcher.Constraint("Vertical", 3),
    Sketcher.Constraint("Horizontal", 4),
    Sketcher.Constraint("Vertical", 5),
    Sketcher.Constraint("Horizontal", 6),
    Sketcher.Constraint("Vertical", 7),
    Sketcher.Constraint("Horizontal", 8),
    Sketcher.Constraint("Vertical", 9),
    Sketcher.Constraint("Horizontal", 10),
    Sketcher.Constraint("Vertical", 11),
    Sketcher.Constraint("Horizontal", 12),
    Sketcher.Constraint("Vertical", 13),
    Sketcher.Constraint("Horizontal", 14),
    Sketcher.Constraint("Vertical", 15),
    Sketcher.Constraint("Horizontal", 16),
    Sketcher.Constraint("Vertical", 17),
    Sketcher.Constraint("Horizontal", 18),
    Sketcher.Constraint("Vertical", 19),
    Sketcher.Constraint("Horizontal", 20),
    Sketcher.Constraint("Vertical", 21),
    Sketcher.Constraint("Horizontal", 22),
    Sketcher.Constraint("Vertical", 23),
    Sketcher.Constraint("Horizontal", 2, 2, 5, 2),
    Sketcher.Constraint("Horizontal", 0, 2, 7, 2),
    Sketcher.Constraint("Horizontal", 16, 2, 19, 2),
    Sketcher.Constraint("Horizontal", 14, 2, 21, 2),
    Sketcher.Constraint("Vertical", 5, 2, 8, 2),
    Sketcher.Constraint("Vertical", 3, 2, 10, 2),
    Sketcher.Constraint("Vertical", 13, 2, 16, 2),
    Sketcher.Constraint("Vertical", 19, 2, 22, 2),
    Sketcher.Constraint("Equal", 10, 12),
    Sketcher.Constraint("Equal", 2, 14),
    Sketcher.Constraint("Equal", 8, 20),
    Sketcher.Constraint("Equal", 5, 9),
    Sketcher.Constraint("Equal", 11, 13),
    Sketcher.Constraint("Equal", 7, 15),
    Sketcher.Constraint("Equal", 13, 17),
    Sketcher.Constraint("DistanceY", 1, 2, 1, 1, 3.5),
    Sketcher.Constraint("DistanceY", 3, 2, 3, 1, 1.0),
    Sketcher.Constraint("DistanceX", 4, 2, 4, 1, 2.4),
    Sketcher.Constraint("DistanceX", 6, 2, 6, 1, 2.774),
    Sketcher.Constraint("DistanceX", -1, 1, 2, 2, 125.43),
    Sketcher.Constraint("DistanceX", 0, 1, 0, 2, 4.9113),
    Sketcher.Constraint("DistanceX", -1, 1, 20, 2, 9.983),
    Sketcher.Constraint("DistanceY", 12, 2, 6, 2, 0.995),
    Sketcher.Constraint("DistanceY", -1, 1, 0, 2, 92.7367),
])
pocket5 = body.newObject("PartDesign::Pocket", "Pocket004")
pocket5.Profile = sketch7
pocket5.Length = 10
pocket5.Reversed = True

doc.recompute()
